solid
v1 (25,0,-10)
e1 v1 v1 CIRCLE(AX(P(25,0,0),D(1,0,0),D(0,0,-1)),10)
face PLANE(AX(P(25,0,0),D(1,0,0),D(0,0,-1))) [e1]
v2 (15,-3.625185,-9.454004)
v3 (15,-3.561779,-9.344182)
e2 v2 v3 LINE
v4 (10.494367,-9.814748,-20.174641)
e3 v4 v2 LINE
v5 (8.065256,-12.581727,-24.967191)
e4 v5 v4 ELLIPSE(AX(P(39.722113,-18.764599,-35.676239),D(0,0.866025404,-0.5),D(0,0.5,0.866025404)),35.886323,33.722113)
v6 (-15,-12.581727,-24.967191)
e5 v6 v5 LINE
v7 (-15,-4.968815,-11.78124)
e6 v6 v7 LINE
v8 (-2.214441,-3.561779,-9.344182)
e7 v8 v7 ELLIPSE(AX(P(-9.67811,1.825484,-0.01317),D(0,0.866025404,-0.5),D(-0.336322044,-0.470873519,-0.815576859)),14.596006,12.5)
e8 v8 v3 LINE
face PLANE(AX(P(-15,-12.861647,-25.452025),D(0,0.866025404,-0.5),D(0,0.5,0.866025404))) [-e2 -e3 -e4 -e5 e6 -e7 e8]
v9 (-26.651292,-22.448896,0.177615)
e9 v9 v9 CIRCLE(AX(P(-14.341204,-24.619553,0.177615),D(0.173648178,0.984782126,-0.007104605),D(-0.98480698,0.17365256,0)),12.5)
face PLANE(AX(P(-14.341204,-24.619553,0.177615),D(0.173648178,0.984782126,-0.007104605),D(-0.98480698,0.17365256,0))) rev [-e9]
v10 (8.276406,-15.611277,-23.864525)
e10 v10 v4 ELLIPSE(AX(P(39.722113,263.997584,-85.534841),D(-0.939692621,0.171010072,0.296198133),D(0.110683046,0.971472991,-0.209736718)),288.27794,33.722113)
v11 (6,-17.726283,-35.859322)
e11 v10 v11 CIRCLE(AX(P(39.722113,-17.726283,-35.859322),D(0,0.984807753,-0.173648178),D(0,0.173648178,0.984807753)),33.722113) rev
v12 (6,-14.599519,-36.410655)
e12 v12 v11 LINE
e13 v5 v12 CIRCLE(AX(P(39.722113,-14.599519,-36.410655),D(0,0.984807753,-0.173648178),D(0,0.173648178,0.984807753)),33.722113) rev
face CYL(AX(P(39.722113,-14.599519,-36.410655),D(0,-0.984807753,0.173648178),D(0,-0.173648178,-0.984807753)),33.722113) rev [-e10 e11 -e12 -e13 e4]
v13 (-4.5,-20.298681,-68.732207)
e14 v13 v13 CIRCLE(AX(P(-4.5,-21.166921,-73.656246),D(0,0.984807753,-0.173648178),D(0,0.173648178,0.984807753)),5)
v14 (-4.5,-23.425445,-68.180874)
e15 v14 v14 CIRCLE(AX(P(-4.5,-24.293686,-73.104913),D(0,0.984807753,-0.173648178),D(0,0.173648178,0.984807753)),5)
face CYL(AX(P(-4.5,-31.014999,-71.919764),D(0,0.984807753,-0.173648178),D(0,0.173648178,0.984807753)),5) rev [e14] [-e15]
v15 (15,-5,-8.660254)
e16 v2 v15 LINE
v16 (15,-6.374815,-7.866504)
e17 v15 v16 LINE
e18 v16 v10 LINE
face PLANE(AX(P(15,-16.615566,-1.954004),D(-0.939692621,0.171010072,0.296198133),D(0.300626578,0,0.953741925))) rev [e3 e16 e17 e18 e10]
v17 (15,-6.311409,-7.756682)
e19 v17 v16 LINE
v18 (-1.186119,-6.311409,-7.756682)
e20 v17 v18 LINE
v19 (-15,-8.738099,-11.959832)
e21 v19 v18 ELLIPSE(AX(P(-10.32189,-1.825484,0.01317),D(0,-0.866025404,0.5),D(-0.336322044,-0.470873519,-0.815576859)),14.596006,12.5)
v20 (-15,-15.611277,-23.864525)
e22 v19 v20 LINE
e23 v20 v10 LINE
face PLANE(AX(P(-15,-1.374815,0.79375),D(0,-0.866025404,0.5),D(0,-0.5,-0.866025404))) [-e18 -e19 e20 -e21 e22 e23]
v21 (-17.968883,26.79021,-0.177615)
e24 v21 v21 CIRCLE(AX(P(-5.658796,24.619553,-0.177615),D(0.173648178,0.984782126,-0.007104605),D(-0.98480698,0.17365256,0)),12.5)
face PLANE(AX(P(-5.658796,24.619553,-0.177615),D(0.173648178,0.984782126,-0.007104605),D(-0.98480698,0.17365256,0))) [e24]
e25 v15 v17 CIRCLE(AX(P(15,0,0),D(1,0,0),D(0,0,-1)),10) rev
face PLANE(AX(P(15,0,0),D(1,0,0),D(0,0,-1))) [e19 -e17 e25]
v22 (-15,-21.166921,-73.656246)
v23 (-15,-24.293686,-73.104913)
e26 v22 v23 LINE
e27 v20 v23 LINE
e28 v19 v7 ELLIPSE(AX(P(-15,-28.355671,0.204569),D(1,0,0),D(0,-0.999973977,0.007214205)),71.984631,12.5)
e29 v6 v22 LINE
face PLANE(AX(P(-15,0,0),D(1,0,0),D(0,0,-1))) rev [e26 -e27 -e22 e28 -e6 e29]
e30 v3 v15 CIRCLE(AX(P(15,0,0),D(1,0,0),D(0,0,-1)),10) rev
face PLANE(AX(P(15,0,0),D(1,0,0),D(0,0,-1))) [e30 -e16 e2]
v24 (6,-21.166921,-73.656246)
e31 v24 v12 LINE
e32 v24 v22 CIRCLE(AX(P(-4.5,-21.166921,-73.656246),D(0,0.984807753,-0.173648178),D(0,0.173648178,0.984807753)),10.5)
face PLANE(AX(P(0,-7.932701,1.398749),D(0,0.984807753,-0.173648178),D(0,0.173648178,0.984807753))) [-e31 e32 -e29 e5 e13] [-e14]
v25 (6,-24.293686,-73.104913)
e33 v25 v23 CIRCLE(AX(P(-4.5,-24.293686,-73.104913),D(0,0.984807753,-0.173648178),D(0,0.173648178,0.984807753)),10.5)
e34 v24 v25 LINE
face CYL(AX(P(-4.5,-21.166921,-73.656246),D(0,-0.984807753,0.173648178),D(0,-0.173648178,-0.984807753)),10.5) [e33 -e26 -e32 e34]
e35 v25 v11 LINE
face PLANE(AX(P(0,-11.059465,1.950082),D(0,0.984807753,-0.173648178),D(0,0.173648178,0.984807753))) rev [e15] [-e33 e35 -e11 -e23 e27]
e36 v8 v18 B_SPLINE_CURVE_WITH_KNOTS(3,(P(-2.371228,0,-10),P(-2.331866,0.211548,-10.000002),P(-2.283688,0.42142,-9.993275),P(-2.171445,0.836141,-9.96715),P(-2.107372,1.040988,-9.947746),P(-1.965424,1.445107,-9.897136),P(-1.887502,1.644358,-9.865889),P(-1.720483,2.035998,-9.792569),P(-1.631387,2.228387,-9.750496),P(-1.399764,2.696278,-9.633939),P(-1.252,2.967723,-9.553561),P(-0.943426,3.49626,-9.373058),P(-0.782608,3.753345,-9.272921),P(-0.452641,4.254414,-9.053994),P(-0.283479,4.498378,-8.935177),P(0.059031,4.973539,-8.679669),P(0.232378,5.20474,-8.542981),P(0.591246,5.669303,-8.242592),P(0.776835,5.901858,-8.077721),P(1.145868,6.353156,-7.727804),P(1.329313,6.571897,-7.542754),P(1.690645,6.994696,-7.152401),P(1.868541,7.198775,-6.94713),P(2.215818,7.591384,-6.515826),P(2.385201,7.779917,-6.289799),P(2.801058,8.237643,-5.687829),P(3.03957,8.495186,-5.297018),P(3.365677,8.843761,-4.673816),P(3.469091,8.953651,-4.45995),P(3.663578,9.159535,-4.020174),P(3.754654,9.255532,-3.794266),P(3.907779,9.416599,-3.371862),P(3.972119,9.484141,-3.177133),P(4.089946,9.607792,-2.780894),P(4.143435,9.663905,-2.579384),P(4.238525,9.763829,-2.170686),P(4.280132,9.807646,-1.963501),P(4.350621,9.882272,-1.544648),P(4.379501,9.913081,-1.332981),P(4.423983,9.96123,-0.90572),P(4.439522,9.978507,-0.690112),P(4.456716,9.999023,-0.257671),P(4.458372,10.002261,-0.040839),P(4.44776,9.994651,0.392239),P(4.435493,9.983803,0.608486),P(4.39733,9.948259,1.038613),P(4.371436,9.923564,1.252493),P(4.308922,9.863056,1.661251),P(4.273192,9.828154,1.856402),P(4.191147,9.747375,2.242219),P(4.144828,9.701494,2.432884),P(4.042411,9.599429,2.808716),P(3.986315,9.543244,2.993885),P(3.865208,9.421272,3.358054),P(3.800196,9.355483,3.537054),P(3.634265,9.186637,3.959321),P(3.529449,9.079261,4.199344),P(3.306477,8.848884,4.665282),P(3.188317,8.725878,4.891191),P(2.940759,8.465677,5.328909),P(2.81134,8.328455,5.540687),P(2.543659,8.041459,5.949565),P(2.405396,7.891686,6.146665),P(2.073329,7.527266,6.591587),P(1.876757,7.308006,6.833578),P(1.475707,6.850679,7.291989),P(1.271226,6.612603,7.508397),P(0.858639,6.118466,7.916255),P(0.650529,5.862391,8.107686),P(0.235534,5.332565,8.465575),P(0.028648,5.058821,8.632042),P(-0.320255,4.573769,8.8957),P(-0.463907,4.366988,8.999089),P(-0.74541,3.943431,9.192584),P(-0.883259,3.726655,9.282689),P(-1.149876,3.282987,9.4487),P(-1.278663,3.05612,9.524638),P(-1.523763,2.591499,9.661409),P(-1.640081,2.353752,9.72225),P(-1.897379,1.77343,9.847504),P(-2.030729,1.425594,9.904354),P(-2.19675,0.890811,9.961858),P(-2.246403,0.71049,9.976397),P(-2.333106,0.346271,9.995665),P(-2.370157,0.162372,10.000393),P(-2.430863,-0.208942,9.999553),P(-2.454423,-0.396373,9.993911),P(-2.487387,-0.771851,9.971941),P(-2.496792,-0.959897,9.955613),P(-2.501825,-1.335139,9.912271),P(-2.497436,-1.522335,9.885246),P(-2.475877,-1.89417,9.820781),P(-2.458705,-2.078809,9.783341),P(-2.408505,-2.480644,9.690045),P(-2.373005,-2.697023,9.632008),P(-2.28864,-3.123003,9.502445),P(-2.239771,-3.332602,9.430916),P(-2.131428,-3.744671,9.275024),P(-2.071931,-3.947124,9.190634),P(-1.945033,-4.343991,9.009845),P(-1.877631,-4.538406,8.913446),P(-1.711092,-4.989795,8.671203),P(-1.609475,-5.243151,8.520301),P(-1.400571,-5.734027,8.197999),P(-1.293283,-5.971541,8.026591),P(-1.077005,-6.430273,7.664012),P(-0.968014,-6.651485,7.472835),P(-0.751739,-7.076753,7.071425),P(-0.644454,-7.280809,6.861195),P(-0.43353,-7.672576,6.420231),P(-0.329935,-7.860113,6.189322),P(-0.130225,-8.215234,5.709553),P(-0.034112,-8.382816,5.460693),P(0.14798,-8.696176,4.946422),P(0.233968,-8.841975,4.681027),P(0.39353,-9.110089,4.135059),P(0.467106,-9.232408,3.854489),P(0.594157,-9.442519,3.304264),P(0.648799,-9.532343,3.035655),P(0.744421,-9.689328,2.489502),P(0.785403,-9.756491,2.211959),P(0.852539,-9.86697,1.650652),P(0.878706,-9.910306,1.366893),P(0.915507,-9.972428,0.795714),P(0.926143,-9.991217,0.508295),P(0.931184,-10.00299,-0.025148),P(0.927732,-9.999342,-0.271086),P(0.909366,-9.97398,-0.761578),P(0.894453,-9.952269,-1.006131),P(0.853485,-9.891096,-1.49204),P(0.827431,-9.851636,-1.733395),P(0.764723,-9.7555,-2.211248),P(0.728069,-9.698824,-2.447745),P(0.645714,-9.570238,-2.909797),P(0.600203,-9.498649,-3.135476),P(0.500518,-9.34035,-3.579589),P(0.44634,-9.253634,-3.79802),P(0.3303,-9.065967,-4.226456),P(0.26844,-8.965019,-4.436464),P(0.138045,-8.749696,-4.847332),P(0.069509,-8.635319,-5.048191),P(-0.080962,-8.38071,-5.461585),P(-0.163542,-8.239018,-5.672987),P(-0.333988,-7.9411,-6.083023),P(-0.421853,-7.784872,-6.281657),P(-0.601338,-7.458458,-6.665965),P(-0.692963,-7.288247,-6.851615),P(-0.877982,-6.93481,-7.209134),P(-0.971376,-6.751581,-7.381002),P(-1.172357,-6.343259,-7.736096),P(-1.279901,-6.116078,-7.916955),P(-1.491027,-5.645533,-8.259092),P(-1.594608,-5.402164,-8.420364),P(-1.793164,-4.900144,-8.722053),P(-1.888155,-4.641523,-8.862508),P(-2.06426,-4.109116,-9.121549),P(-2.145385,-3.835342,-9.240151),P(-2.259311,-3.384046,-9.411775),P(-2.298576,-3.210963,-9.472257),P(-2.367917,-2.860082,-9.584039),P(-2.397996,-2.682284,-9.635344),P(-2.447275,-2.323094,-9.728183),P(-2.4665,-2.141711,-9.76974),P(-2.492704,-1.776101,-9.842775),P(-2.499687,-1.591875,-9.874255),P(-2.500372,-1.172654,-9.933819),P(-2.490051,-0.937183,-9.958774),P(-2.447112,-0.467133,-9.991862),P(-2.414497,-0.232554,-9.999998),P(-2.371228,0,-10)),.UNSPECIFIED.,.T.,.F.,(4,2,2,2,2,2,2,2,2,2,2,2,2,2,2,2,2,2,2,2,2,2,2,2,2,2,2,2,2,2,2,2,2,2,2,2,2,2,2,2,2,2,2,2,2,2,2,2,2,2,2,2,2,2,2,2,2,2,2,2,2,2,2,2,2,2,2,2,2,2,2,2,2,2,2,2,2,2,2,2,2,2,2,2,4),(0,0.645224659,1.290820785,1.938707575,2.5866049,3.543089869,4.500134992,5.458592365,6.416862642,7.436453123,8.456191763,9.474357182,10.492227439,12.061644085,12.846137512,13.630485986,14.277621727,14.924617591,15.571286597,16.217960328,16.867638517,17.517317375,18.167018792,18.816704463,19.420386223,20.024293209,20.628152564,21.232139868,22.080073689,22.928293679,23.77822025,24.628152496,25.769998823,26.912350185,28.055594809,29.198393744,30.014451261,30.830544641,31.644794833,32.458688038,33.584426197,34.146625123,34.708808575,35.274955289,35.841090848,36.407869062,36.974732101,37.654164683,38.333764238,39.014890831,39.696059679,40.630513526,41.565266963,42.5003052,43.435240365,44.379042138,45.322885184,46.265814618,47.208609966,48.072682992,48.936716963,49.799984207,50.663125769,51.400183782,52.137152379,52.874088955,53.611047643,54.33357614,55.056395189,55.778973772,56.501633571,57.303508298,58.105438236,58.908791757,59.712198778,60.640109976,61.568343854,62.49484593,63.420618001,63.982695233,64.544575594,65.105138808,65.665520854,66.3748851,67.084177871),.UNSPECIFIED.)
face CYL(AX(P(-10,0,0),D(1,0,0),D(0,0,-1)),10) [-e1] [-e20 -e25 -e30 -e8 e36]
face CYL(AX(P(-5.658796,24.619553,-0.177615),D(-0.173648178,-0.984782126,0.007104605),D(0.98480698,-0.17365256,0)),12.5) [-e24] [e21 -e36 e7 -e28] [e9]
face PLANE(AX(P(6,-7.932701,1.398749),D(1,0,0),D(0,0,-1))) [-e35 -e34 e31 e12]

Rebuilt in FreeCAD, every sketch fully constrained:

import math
import FreeCAD as App
import Part
import Sketcher
from FreeCAD import Vector
Q = App.Units.Quantity

doc = App.newDocument("Part")
body = doc.addObject("PartDesign::Body", "Body")

sketch1 = body.newObject("Sketcher::SketchObject", "Sketch")
sketch1.AttachmentSupport = (doc.getObject("YZ_Plane"), [""])
sketch1.MapMode = "FlatFace"
sketch1.addGeometry(Part.Circle(Vector(0, 0, 0), Vector(0, 0, 1), 10), False)
sketch1.addConstraint([
    Sketcher.Constraint("Coincident", 0, 3, -1, 1),
    Sketcher.Constraint("Diameter", 0, Q("20 mm")),
])
pad1 = body.newObject("PartDesign::Pad", "Pad")
pad1.Profile = sketch1
pad1.Type = "TwoLengths"
pad1.Length = 25
pad1.Length2 = 10

sketch2 = body.newObject("Sketcher::SketchObject", "Sketch001")
sketch2.Placement = App.Placement(Vector(-10, 0, 0), App.Rotation(Vector(0.98480698, -0.17365256, 0.000000016), Vector(-0.001233717, -0.006996667, -0.999974762), Vector(0.173648178, 0.984782126, -0.007104605), "ZXY"))
sketch2.addGeometry(Part.Circle(Vector(0, 0, 0), Vector(0, 0, 1), 12), False)
sketch2.addConstraint([
    Sketcher.Constraint("Coincident", 0, 3, -1, 1),
    Sketcher.Constraint("Diameter", 0, Q("25 mm")),
])
pad2 = body.newObject("PartDesign::Pad", "Pad001")
pad2.Profile = sketch2
pad2.Length = 50
pad2.Midplane = True

sketch3 = body.newObject("Sketcher::SketchObject", "Sketch002")
sketch3.AttachmentSupport = (doc.getObject("YZ_Plane"), [""])
sketch3.MapMode = "FlatFace"
sketch3.addGeometry([
    Part.LineSegment(Vector(1.4, -0.8, 0), Vector(-1.4, 0.8, 0)),
    Part.LineSegment(Vector(-1.4, 0.8, 0), Vector(-15.6, -23.9, 0)),
    Part.LineSegment(Vector(-15.6, -23.9, 0), Vector(-12.9, -25.5, 0)),
    Part.LineSegment(Vector(-12.9, -25.5, 0), Vector(1.4, -0.8, 0)),
], False)
sketch3.addConstraint([
    Sketcher.Constraint("Coincident", 0, 2, 1, 1),
    Sketcher.Constraint("Coincident", 1, 2, 2, 1),
    Sketcher.Constraint("Coincident", 2, 2, 3, 1),
    Sketcher.Constraint("Coincident", 3, 2, 0, 1),
    Sketcher.Constraint("Symmetric", 0, 2, 3, 2, -1, 1),
    Sketcher.Constraint("Perpendicular", 0, 1),
    Sketcher.Constraint("Perpendicular", 1, 2),
    Sketcher.Constraint("Perpendicular", 2, 3),
    Sketcher.Constraint("Angle", 0, Q("150 deg")),
    Sketcher.Constraint("Distance", 0, Q("3.175 mm")),
    Sketcher.Constraint("DistanceX", 1, 2, 0, 2, Q("14.236462 mm")),
])
pad3 = body.newObject("PartDesign::Pad", "Pad002")
pad3.Profile = sketch3
pad3.Type = "TwoLengths"
pad3.Length = 15
pad3.Length2 = 15

sketch4 = body.newObject("Sketcher::SketchObject", "Sketch003")
sketch4.Placement = App.Placement(Vector(0, 1.374815, -0.79375), App.Rotation(Vector(1, 0, 0), Vector(0, -0.5, -0.866025404), Vector(0, 0.866025404, -0.5), "ZXY"))
sketch4.addGeometry([
    Part.LineSegment(Vector(15, 10, 0), Vector(15, 28, 0)),
    Part.LineSegment(Vector(15, 28, 0), Vector(8, 28, 0)),
    Part.LineSegment(Vector(8, 28, 0), Vector(15, 10, 0)),
], False)
sketch4.addConstraint([
    Sketcher.Constraint("Coincident", 0, 2, 1, 1),
    Sketcher.Constraint("Coincident", 1, 2, 2, 1),
    Sketcher.Constraint("Coincident", 2, 2, 0, 1),
    Sketcher.Constraint("Vertical", 0),
    Sketcher.Constraint("Horizontal", 1),
    Sketcher.Constraint("Angle", 2, Q("-70 deg")),
    Sketcher.Constraint("DistanceX", -1, 1, 0, 2, Q("15 mm")),
    Sketcher.Constraint("DistanceY", -1, 1, 2, 2, Q("10 mm")),
    Sketcher.Constraint("DistanceX", 1, 2, 1, 1, Q("6.723594 mm")),
])
pocket1 = body.newObject("PartDesign::Pocket", "Pocket")
pocket1.Profile = sketch4
pocket1.Length = 15

sketch5 = body.newObject("Sketcher::SketchObject", "Sketch004")
sketch5.Placement = App.Placement(Vector(0, -11.059465, 1.950082), App.Rotation(Vector(1, 0, 0), Vector(0, -0.173648178, -0.984807753), Vector(0, 0.984807753, -0.173648178), "ZXY"))
sketch5.addGeometry([
    Part.LineSegment(Vector(6, 38, 0), Vector(6, 76, 0)),
    Part.ArcOfCircle(Part.Circle(Vector(-4, 76, 0), Vector(0, 0, 1), 10), math.radians(0), math.radians(180)),
    Part.LineSegment(Vector(-15, 76, 0), Vector(-15, 26, 0)),
    Part.LineSegment(Vector(-15, 26, 0), Vector(8, 26, 0)),
    Part.ArcOfCircle(Part.Circle(Vector(40, 38, 0), Vector(0, 0, 1), 34), math.radians(180), math.radians(201)),
], False)
sketch5.addConstraint([
    Sketcher.Constraint("Tangent", 0, 2, 1, 1),
    Sketcher.Constraint("Tangent", 1, 2, 2, 1),
    Sketcher.Constraint("Coincident", 2, 2, 3, 1),
    Sketcher.Constraint("Coincident", 3, 2, 4, 2),
    Sketcher.Constraint("Tangent", 4, 1, 0, 1),
    Sketcher.Constraint("Vertical", 0),
    Sketcher.Constraint("Vertical", 2),
    Sketcher.Constraint("Horizontal", 3),
    Sketcher.Constraint("Radius", 1, Q("10.5 mm")),
    Sketcher.Constraint("DistanceY", 2, 2, 2, 1, Q("50 mm")),
    Sketcher.Constraint("DistanceX", -1, 1, 0, 2, Q("6 mm")),
    Sketcher.Constraint("Radius", 4, Q("33.722113 mm")),
    Sketcher.Constraint("DistanceX", 3, 1, 3, 2, Q("23.276406 mm")),
    Sketcher.Constraint("DistanceY", -1, 1, 1, 3, Q("76.212839 mm")),
])
pad4 = body.newObject("PartDesign::Pad", "Pad003")
pad4.Profile = sketch5
pad4.Length = 3.175

sketch6 = body.newObject("Sketcher::SketchObject", "Sketch005")
sketch6.Placement = App.Placement(Vector(0, -7.932701, 1.398749), App.Rotation(Vector(1, 0, 0), Vector(0, -0.173648178, -0.984807753), Vector(0, 0.984807753, -0.173648178), "ZXY"))
sketch6.addGeometry([
    Part.LineSegment(Vector(14, 17, 0), Vector(11, 56, 0)),
    Part.ArcOfCircle(Part.Circle(Vector(40, 38, 0), Vector(0, 0, 1), 34), math.radians(148), math.radians(220)),
], False)
sketch6.addConstraint([
    Sketcher.Constraint("Coincident", 0, 1, 1, 2),
    Sketcher.Constraint("Coincident", 1, 1, 0, 2),
    Sketcher.Constraint("Radius", 1, Q("33.722113 mm")),
    Sketcher.Constraint("DistanceX", -1, 1, 1, 1, Q("10.969459 mm")),
    Sketcher.Constraint("DistanceX", 0, 1, 1, 3, Q("25.895839 mm")),
    Sketcher.Constraint("DistanceY", 1, 3, 1, 1, Q("17.620039 mm")),
    Sketcher.Constraint("DistanceY", -1, 1, 1, 3, Q("38.392675 mm")),
])
pocket2 = body.newObject("PartDesign::Pocket", "Pocket001")
pocket2.Profile = sketch6
pocket2.Type = "ThroughAll"
pocket2.Midplane = True

sketch7 = body.newObject("Sketcher::SketchObject", "Sketch006")
sketch7.Placement = App.Placement(Vector(0, -7.932701, 1.398749), App.Rotation(Vector(1, 0, 0), Vector(0, -0.173648178, -0.984807753), Vector(0, 0.984807753, -0.173648178), "ZXY"))
sketch7.addGeometry(Part.Circle(Vector(-4, 76, 0), Vector(0, 0, 1), 5), False)
sketch7.addConstraint([
    Sketcher.Constraint("Diameter", 0, Q("10 mm")),
    Sketcher.Constraint("DistanceX", 0, 3, -1, 1, Q("4.5 mm")),
    Sketcher.Constraint("DistanceY", -1, 1, 0, 3, Q("76.212839 mm")),
])
pocket3 = body.newObject("PartDesign::Pocket", "Pocket002")
pocket3.Profile = sketch7
pocket3.Length = 10

doc.recompute()
